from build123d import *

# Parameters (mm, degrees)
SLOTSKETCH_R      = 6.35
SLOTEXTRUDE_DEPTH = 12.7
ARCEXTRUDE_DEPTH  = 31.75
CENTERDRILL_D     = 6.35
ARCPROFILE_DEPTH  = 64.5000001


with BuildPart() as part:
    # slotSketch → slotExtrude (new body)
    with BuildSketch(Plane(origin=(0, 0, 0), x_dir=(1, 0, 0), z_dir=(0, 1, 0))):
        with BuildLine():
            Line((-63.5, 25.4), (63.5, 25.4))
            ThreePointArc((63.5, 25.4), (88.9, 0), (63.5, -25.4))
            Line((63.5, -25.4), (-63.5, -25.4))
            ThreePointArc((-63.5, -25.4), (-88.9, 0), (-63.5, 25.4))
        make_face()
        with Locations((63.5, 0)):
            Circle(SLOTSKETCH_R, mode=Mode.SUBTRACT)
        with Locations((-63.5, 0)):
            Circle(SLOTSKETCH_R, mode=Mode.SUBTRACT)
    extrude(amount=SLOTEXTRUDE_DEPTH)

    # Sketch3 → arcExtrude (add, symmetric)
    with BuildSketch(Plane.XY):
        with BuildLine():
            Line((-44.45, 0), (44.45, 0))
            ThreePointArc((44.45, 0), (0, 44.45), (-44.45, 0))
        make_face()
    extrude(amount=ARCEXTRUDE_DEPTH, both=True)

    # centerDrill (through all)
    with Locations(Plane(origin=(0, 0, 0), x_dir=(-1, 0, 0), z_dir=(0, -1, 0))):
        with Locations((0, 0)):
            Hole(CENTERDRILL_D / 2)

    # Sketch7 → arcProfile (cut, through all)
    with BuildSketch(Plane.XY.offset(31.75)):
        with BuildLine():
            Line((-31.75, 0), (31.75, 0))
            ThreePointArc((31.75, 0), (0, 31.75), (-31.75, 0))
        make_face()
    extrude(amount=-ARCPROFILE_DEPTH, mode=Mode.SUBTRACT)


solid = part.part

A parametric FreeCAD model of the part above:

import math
import FreeCAD as App
import Part
import Sketcher
Q = App.Units.Quantity

doc = App.newDocument("Part")
params = doc.addObject("Spreadsheet::Sheet", "Params")
for row, (alias, value) in enumerate([
    ("sketch1_radius", "1 in"),
    ("sketch1_diameter", "0.5 in"),
    ("sketch1_width", "5 in"),
    ("pad1_length", "0.5 in"),
    ("sketch2_radius", "1.75 in"),
    ("pad2_length", "2.5 in"),
    ("sketch3_diameter", "0.25 in"),
    ("hole_diameter", "0.25 in"),
    ("sketch4_radius", "1.25 in"),
], start=1):
    params.set(f"A{row}", alias)
    params.set(f"B{row}", "=" + value)
    params.setAlias(f"B{row}", alias)

body = doc.addObject("PartDesign::Body", "Body")

sketch1 = body.newObject("Sketcher::SketchObject", "Sketch")
sketch1.AttachmentSupport = (doc.getObject("XZ_Plane"), [""])
sketch1.MapMode = "FlatFace"
sketch1.addGeometry(Part.LineSegment(App.Vector(63.5, -25.4, 0), App.Vector(-63.5, -25.4, 0)), False)
sketch1.addGeometry(Part.ArcOfCircle(Part.Circle(App.Vector(-63.5, 0, 0), App.Vector(0, 0, 1), 25.4), math.radians(90), math.radians(270)), False)
sketch1.addGeometry(Part.LineSegment(App.Vector(-63.5, 25.4, 0), App.Vector(63.5, 25.4, 0)), False)
sketch1.addGeometry(Part.ArcOfCircle(Part.Circle(App.Vector(63.5, 0, 0), App.Vector(0, 0, 1), 25.4), math.radians(-90), math.radians(90)), False)
sketch1.addGeometry(Part.Circle(App.Vector(63.5, 0, 0), App.Vector(0, 0, 1), 6.35), False)
sketch1.addGeometry(Part.Circle(App.Vector(-63.5, 0, 0), App.Vector(0, 0, 1), 6.35), False)
sketch1.addConstraint(Sketcher.Constraint("Tangent", 0, 2, 1, 2))
sketch1.addConstraint(Sketcher.Constraint("Tangent", 1, 1, 2, 1))
sketch1.addConstraint(Sketcher.Constraint("Tangent", 2, 2, 3, 2))
sketch1.addConstraint(Sketcher.Constraint("Tangent", 3, 1, 0, 1))
sketch1.addConstraint(Sketcher.Constraint("Horizontal", 0))
sketch1.addConstraint(Sketcher.Constraint("Horizontal", 2))
sketch1.addConstraint(Sketcher.Constraint("Coincident", 4, 3, 3, 3))
sketch1.addConstraint(Sketcher.Constraint("Coincident", 5, 3, 1, 3))
sketch1.addConstraint(Sketcher.Constraint("Equal", 4, 5))
sketch1.addConstraint(Sketcher.Constraint("Symmetric", 1, 3, 3, 3, -1, 1))
sketch1.addConstraint(Sketcher.Constraint("Radius", 1, Q("1 in")))
sketch1.addConstraint(Sketcher.Constraint("Diameter", 4, Q("0.5 in")))
sketch1.addConstraint(Sketcher.Constraint("DistanceX", 0, 2, 0, 1, Q("5 in")))
sketch1.setExpression("Constraints[10]", "Params.sketch1_radius")
sketch1.setExpression("Constraints[11]", "Params.sketch1_diameter")
sketch1.setExpression("Constraints[12]", "Params.sketch1_width")
pad1 = body.newObject("PartDesign::Pad", "Pad")
pad1.Profile = sketch1
pad1.setExpression("Length", "Params.pad1_length")
pad1.Reversed = True

sketch2 = body.newObject("Sketcher::SketchObject", "Sketch001")
sketch2.AttachmentSupport = (doc.getObject("XY_Plane"), [""])
sketch2.MapMode = "FlatFace"
sketch2.addGeometry(Part.LineSegment(App.Vector(-44.45, 0, 0), App.Vector(44.45, 0, 0)), False)
sketch2.addGeometry(Part.ArcOfCircle(Part.Circle(App.Vector(0, 0, 0), App.Vector(0, 0, 1), 44.45), math.radians(0), math.radians(180)), False)
sketch2.addConstraint(Sketcher.Constraint("Coincident", 0, 1, 1, 2))
sketch2.addConstraint(Sketcher.Constraint("Coincident", 1, 1, 0, 2))
sketch2.addConstraint(Sketcher.Constraint("Horizontal", 0))
sketch2.addConstraint(Sketcher.Constraint("Coincident", 1, 3, -1, 1))
sketch2.addConstraint(Sketcher.Constraint("PointOnObject", 0, 1, -1))
sketch2.addConstraint(Sketcher.Constraint("Radius", 1, Q("1.75 in")))
sketch2.setExpression("Constraints[5]", "Params.sketch2_radius")
pad2 = body.newObject("PartDesign::Pad", "Pad001")
pad2.Profile = sketch2
pad2.setExpression("Length", "Params.pad2_length")
pad2.Midplane = True

sketch3 = body.newObject("Sketcher::SketchObject", "Sketch002")
sketch3.AttachmentSupport = (doc.getObject("XZ_Plane"), [""])
sketch3.MapMode = "FlatFace"
sketch3.addGeometry(Part.Circle(App.Vector(0, 0, 0), App.Vector(0, 0, 1), 3.175), False)
sketch3.addConstraint(Sketcher.Constraint("Coincident", 0, 3, -1, 1))
sketch3.addConstraint(Sketcher.Constraint("Diameter", 0, Q("0.25 in")))
sketch3.setExpression("Constraints[1]", "Params.sketch3_diameter")
doc.recompute()
hole = body.newObject("PartDesign::Hole", "Hole")
hole.Profile = sketch3
hole.ThreadType = "None"
hole.setExpression("Diameter", "Params.hole_diameter")
hole.DepthType = "ThroughAll"

sketch4 = body.newObject("Sketcher::SketchObject", "Sketch003")
sketch4.AttachmentSupport = (doc.getObject("XY_Plane"), [""])
sketch4.MapMode = "FlatFace"
sketch4.AttachmentOffset = App.Placement(App.Vector(0, 0, 1.25 * 25.4), App.Rotation())
sketch4.addGeometry(Part.LineSegment(App.Vector(-31.75, 0, 0), App.Vector(31.75, 0, 0)), False)
sketch4.addGeometry(Part.ArcOfCircle(Part.Circle(App.Vector(0, 0, 0), App.Vector(0, 0, 1), 31.75), math.radians(0), math.radians(180)), False)
sketch4.addConstraint(Sketcher.Constraint("Coincident", 0, 1, 1, 2))
sketch4.addConstraint(Sketcher.Constraint("Coincident", 1, 1, 0, 2))
sketch4.addConstraint(Sketcher.Constraint("Horizontal", 0))
sketch4.addConstraint(Sketcher.Constraint("Coincident", 1, 3, -1, 1))
sketch4.addConstraint(Sketcher.Constraint("PointOnObject", 0, 1, -1))
sketch4.addConstraint(Sketcher.Constraint("Radius", 1, Q("1.25 in")))
sketch4.setExpression("Constraints[5]", "Params.sketch4_radius")
pocket1 = body.newObject("PartDesign::Pocket", "Pocket")
pocket1.Profile = sketch4
pocket1.Type = "ThroughAll"

doc.recompute()
